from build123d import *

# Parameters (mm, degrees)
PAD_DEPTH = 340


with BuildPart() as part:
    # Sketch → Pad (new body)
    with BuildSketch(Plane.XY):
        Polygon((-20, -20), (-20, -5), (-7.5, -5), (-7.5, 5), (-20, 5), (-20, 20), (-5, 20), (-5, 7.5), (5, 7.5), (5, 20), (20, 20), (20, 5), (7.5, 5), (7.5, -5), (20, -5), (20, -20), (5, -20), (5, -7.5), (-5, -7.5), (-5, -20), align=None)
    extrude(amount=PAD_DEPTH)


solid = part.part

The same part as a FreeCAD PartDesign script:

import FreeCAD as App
import Part
import Sketcher

doc = App.newDocument("Part")
params = doc.addObject("Spreadsheet::Sheet", "Params")
for row, (alias, value) in enumerate([
    ("sketch1_width", "15 mm"),
    ("sketch1_width2", "10 mm"),
    ("sketch1_width3", "12.5 mm"),
    ("pad1_length", "340 mm"),
], start=1):
    params.set(f"A{row}", alias)
    params.set(f"B{row}", "=" + value)
    params.setAlias(f"B{row}", alias)

body = doc.addObject("PartDesign::Body", "Body")

# Sketch on XY plane
sketch1 = body.newObject("Sketcher::SketchObject", "Sketch")
sketch1.AttachmentSupport = (doc.getObject("XY_Plane"), [""])
sketch1.MapMode = "FlatFace"
sketch1.addGeometry(Part.LineSegment(App.Vector(-20, -5, 0), App.Vector(-20, -20, 0)), False)
sketch1.addGeometry(Part.LineSegment(App.Vector(-20, -20, 0), App.Vector(-5, -20, 0)), False)
sketch1.addGeometry(Part.LineSegment(App.Vector(-5, -20, 0), App.Vector(-5, -8, 0)), False)
sketch1.addGeometry(Part.LineSegment(App.Vector(-5, -8, 0), App.Vector(5, -8, 0)), False)
sketch1.addGeometry(Part.LineSegment(App.Vector(5, -8, 0), App.Vector(5, -20, 0)), False)
sketch1.addGeometry(Part.LineSegment(App.Vector(5, -20, 0), App.Vector(20, -20, 0)), False)
sketch1.addGeometry(Part.LineSegment(App.Vector(20, -20, 0), App.Vector(20, -5, 0)), False)
sketch1.addGeometry(Part.LineSegment(App.Vector(20, -5, 0), App.Vector(8, -5, 0)), False)
sketch1.addGeometry(Part.LineSegment(App.Vector(8, -5, 0), App.Vector(8, 5, 0)), False)
sketch1.addGeometry(Part.LineSegment(App.Vector(8, 5, 0), App.Vector(20, 5, 0)), False)
sketch1.addGeometry(Part.LineSegment(App.Vector(20, 5, 0), App.Vector(20, 20, 0)), False)
sketch1.addGeometry(Part.LineSegment(App.Vector(20, 20, 0), App.Vector(5, 20, 0)), False)
sketch1.addGeometry(Part.LineSegment(App.Vector(5, 20, 0), App.Vector(5, 8, 0)), False)
sketch1.addGeometry(Part.LineSegment(App.Vector(5, 8, 0), App.Vector(-5, 8, 0)), False)
sketch1.addGeometry(Part.LineSegment(App.Vector(-5, 8, 0), App.Vector(-5, 20, 0)), False)
sketch1.addGeometry(Part.LineSegment(App.Vector(-5, 20, 0), App.Vector(-20, 20, 0)), False)
sketch1.addGeometry(Part.LineSegment(App.Vector(-20, 20, 0), App.Vector(-20, 5, 0)), False)
sketch1.addGeometry(Part.LineSegment(App.Vector(-20, 5, 0), App.Vector(-8, 5, 0)), False)
sketch1.addGeometry(Part.LineSegment(App.Vector(-8, 5, 0), App.Vector(-8, -5, 0)), False)
sketch1.addGeometry(Part.LineSegment(App.Vector(-8, -5, 0), App.Vector(-20, -5, 0)), False)
sketch1.addConstraint(Sketcher.Constraint("Coincident", 0, 2, 1, 1))
sketch1.addConstraint(Sketcher.Constraint("Coincident", 1, 2, 2, 1))
sketch1.addConstraint(Sketcher.Constraint("Coincident", 2, 2, 3, 1))
sketch1.addConstraint(Sketcher.Constraint("Coincident", 3, 2, 4, 1))
sketch1.addConstraint(Sketcher.Constraint("Coincident", 4, 2, 5, 1))
sketch1.addConstraint(Sketcher.Constraint("Coincident", 5, 2, 6, 1))
sketch1.addConstraint(Sketcher.Constraint("Coincident", 6, 2, 7, 1))
sketch1.addConstraint(Sketcher.Constraint("Coincident", 7, 2, 8, 1))
sketch1.addConstraint(Sketcher.Constraint("Coincident", 8, 2, 9, 1))
sketch1.addConstraint(Sketcher.Constraint("Coincident", 9, 2, 10, 1))
sketch1.addConstraint(Sketcher.Constraint("Coincident", 10, 2, 11, 1))
sketch1.addConstraint(Sketcher.Constraint("Coincident", 11, 2, 12, 1))
sketch1.addConstraint(Sketcher.Constraint("Coincident", 12, 2, 13, 1))
sketch1.addConstraint(Sketcher.Constraint("Coincident", 13, 2, 14, 1))
sketch1.addConstraint(Sketcher.Constraint("Coincident", 14, 2, 15, 1))
sketch1.addConstraint(Sketcher.Constraint("Coincident", 15, 2, 16, 1))
sketch1.addConstraint(Sketcher.Constraint("Coincident", 16, 2, 17, 1))
sketch1.addConstraint(Sketcher.Constraint("Coincident", 17, 2, 18, 1))
sketch1.addConstraint(Sketcher.Constraint("Coincident", 18, 2, 19, 1))
sketch1.addConstraint(Sketcher.Constraint("Coincident", 19, 2, 0, 1))
sketch1.addConstraint(Sketcher.Constraint("Vertical", 0))
sketch1.addConstraint(Sketcher.Constraint("Horizontal", 1))
sketch1.addConstraint(Sketcher.Constraint("Vertical", 2))
sketch1.addConstraint(Sketcher.Constraint("Horizontal", 3))
sketch1.addConstraint(Sketcher.Constraint("Vertical", 4))
sketch1.addConstraint(Sketcher.Constraint("Horizontal", 5))
sketch1.addConstraint(Sketcher.Constraint("Vertical", 6))
sketch1.addConstraint(Sketcher.Constraint("Horizontal", 7))
sketch1.addConstraint(Sketcher.Constraint("Vertical", 8))
sketch1.addConstraint(Sketcher.Constraint("Horizontal", 9))
sketch1.addConstraint(Sketcher.Constraint("Vertical", 10))
sketch1.addConstraint(Sketcher.Constraint("Horizontal", 11))
sketch1.addConstraint(Sketcher.Constraint("Vertical", 12))
sketch1.addConstraint(Sketcher.Constraint("Horizontal", 13))
sketch1.addConstraint(Sketcher.Constraint("Vertical", 14))
sketch1.addConstraint(Sketcher.Constraint("Horizontal", 15))
sketch1.addConstraint(Sketcher.Constraint("Vertical", 16))
sketch1.addConstraint(Sketcher.Constraint("Horizontal", 17))
sketch1.addConstraint(Sketcher.Constraint("Vertical", 18))
sketch1.addConstraint(Sketcher.Constraint("Horizontal", 19))
sketch1.addConstraint(Sketcher.Constraint("Symmetric", 0, 2, 10, 2, -1, 1))
sketch1.addConstraint(Sketcher.Constraint("Symmetric", 2, 2, 12, 2, -1, 1))
sketch1.addConstraint(Sketcher.Constraint("Symmetric", 4, 2, 14, 2, -1, 1))
sketch1.addConstraint(Sketcher.Constraint("Symmetric", 6, 2, 16, 2, -1, 1))
sketch1.addConstraint(Sketcher.Constraint("Symmetric", 8, 2, 18, 2, -1, 1))
sketch1.addConstraint(Sketcher.Constraint("Symmetric", 1, 2, 4, 2, -2))
sketch1.addConstraint(Sketcher.Constraint("Symmetric", 9, 2, 16, 2, -2))
sketch1.addConstraint(Sketcher.Constraint("Equal", 15, 0))
sketch1.addConstraint(Sketcher.Constraint("Equal", 19, 2))
sketch1.addConstraint(Sketcher.Constraint("Equal", 13, 8))
sketch1.addConstraint(Sketcher.Constraint("DistanceX", 1, 1, 1, 2, 15.0))
sketch1.addConstraint(Sketcher.Constraint("DistanceX", 3, 1, 3, 2, 10.0))
sketch1.addConstraint(Sketcher.Constraint("DistanceX", 7, 2, 7, 1, 12.5))
sketch1.setExpression("Constraints[50]", "Params.sketch1_width")
sketch1.setExpression("Constraints[51]", "Params.sketch1_width2")
sketch1.setExpression("Constraints[52]", "Params.sketch1_width3")
pad1 = body.newObject("PartDesign::Pad", "Pad")
pad1.Profile = sketch1
pad1.setExpression("Length", "Params.pad1_length")

doc.recompute()
